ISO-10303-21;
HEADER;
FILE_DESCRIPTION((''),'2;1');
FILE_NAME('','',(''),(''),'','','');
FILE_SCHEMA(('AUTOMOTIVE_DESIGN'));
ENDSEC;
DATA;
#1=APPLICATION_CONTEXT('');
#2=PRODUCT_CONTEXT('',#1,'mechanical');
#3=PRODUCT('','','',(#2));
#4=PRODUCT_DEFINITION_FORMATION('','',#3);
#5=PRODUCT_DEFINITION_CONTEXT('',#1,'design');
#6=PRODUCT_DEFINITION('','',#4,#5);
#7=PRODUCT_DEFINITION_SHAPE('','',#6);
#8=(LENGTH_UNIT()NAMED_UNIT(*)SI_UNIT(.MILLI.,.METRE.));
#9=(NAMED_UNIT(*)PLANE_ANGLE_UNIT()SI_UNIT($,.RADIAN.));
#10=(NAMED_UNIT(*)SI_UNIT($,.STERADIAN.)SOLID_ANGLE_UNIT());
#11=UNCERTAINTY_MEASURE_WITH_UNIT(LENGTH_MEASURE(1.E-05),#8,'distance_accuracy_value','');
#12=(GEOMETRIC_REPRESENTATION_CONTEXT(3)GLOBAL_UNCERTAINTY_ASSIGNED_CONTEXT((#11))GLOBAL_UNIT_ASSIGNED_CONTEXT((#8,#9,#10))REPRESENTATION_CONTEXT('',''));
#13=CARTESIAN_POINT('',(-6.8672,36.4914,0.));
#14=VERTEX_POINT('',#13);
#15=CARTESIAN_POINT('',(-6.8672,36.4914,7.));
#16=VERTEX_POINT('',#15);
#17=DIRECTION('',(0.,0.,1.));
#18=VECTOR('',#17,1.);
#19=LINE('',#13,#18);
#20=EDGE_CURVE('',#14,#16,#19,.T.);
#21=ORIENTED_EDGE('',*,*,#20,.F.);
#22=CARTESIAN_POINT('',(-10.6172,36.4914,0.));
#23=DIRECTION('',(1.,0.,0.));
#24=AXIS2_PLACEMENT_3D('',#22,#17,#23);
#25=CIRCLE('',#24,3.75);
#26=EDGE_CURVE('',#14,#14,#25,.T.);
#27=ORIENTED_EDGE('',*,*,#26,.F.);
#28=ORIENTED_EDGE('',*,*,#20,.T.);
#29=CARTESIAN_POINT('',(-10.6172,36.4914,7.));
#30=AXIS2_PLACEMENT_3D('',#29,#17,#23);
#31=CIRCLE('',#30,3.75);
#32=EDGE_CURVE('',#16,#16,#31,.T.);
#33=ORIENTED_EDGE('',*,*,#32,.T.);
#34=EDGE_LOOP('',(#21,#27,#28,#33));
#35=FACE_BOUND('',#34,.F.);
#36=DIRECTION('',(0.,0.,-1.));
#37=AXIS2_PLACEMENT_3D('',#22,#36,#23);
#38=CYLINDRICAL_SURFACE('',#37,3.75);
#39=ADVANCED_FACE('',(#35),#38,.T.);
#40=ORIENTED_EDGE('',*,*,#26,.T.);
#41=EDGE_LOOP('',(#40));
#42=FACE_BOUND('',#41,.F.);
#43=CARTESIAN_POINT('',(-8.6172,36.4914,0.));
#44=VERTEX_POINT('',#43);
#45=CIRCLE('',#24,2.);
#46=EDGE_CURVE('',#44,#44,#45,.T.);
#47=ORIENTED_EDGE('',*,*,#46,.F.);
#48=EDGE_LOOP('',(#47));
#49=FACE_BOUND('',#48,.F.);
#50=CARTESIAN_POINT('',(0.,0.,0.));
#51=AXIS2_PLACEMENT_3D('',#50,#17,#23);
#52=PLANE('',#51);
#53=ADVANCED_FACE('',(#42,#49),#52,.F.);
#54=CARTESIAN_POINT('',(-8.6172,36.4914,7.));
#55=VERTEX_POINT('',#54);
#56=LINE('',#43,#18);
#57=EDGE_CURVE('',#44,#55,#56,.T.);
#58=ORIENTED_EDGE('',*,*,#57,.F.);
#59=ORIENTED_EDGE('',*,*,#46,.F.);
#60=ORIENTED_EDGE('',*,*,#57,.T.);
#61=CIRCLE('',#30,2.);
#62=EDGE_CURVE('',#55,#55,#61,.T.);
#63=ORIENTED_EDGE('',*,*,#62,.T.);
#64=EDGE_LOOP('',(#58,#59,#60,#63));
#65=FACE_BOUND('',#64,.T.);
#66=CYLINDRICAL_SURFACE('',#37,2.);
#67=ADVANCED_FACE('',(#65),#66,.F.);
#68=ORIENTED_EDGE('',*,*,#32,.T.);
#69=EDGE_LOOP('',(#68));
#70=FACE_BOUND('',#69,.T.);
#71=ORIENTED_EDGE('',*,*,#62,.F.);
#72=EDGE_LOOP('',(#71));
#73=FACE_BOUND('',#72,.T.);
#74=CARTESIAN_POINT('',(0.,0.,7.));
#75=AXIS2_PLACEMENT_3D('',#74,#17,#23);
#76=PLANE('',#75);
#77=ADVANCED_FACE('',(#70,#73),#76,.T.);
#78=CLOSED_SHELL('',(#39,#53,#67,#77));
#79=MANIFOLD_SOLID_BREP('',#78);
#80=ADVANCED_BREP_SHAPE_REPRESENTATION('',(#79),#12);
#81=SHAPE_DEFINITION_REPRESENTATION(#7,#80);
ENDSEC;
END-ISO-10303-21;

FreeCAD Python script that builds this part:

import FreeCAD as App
import Part
import Sketcher

V = App.Vector

doc = App.newDocument("Part")
body = doc.addObject("PartDesign::Body", "Body")

sketch1 = doc.addObject("Sketcher::SketchObject", "Sketch")
body.addObject(sketch1)
sketch1.AttachmentSupport = (doc.XY_Plane, [""])
sketch1.MapMode = "FlatFace"
sketch1.addGeometry([
    Part.Circle(V(-10.6, 36.5, 0), V(0, 0, 1), 3.8),
    Part.Circle(V(-10.6, 36.5, 0), V(0, 0, 1), 2),
], False)
sketch1.addConstraint([
    Sketcher.Constraint("Coincident", 1, 3, 0, 3),
    Sketcher.Constraint("Diameter", 0, 7.5),
    Sketcher.Constraint("Diameter", 1, 4.0),
    Sketcher.Constraint("DistanceX", 0, 3, -1, 1, 10.6172),
    Sketcher.Constraint("DistanceY", -1, 1, 0, 3, 36.4914),
])
pad1 = doc.addObject("PartDesign::Pad", "Pad")
body.addObject(pad1)
pad1.Profile = sketch1
pad1.Length = 7

doc.recompute()
